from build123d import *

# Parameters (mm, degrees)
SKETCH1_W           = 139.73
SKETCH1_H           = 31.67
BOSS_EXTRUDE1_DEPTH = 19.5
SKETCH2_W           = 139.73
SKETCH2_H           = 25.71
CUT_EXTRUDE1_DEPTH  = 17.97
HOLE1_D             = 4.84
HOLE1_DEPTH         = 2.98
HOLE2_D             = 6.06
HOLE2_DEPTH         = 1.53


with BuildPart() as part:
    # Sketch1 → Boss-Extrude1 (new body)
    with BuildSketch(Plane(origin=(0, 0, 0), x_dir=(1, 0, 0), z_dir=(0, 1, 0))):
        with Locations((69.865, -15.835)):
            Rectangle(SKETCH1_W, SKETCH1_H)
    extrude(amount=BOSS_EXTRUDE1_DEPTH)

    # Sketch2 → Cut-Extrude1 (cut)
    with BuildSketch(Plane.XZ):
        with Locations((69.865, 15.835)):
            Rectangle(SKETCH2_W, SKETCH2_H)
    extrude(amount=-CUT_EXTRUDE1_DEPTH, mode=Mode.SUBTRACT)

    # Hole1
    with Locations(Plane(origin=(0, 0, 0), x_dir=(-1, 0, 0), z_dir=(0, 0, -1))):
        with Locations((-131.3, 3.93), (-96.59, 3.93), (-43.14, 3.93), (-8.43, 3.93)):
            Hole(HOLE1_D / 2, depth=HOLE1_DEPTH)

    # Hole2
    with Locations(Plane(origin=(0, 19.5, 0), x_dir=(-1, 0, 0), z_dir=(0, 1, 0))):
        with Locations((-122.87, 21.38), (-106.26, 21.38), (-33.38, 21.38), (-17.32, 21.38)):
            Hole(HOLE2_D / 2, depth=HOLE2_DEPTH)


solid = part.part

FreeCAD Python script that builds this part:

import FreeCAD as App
import Part
import Sketcher

V = App.Vector


def add_polygon(sketch, points):
    """Adds a closed chain of lines whose ends are joined by coincident constraints."""
    first, n = sketch.GeometryCount, len(points)
    for a, b in zip(points, points[1:] + points[:1]):
        sketch.addGeometry(Part.LineSegment(App.Vector(*a, 0), App.Vector(*b, 0)), False)
    for i in range(n):
        sketch.addConstraint(Sketcher.Constraint("Coincident", first + i, 2, first + (i + 1) % n, 1))

doc = App.newDocument("Part")
body = doc.addObject("PartDesign::Body", "Body")

# Sketch on XZ plane
sketch1 = body.newObject("Sketcher::SketchObject", "Sketch")
sketch1.AttachmentSupport = (doc.getObject("XZ_Plane"), [""])
sketch1.MapMode = "FlatFace"
add_polygon(sketch1, [(0, 0), (0, 31.67), (139.73, 31.67), (139.73, 0)])  # lines 0-3
sketch1.addConstraint([
    Sketcher.Constraint("Vertical", 0),
    Sketcher.Constraint("Horizontal", 1),
    Sketcher.Constraint("Vertical", 2),
    Sketcher.Constraint("Horizontal", 3),
    Sketcher.Constraint("Coincident", 3, 2, -1, 1),
    Sketcher.Constraint("DistanceX", 1, 1, 1, 2, 139.73),
    Sketcher.Constraint("DistanceY", 0, 1, 0, 2, 31.67),
])
pad1 = body.newObject("PartDesign::Pad", "Pad")
pad1.Profile = sketch1
pad1.Length = 19.5
pad1.Reversed = True

# Sketch on XZ plane
sketch2 = body.newObject("Sketcher::SketchObject", "Sketch001")
sketch2.AttachmentSupport = (doc.getObject("XZ_Plane"), [""])
sketch2.MapMode = "FlatFace"
add_polygon(sketch2, [(0, 28.69), (0, 2.98), (139.73, 2.98), (139.73, 28.69)])  # lines 0-3
sketch2.addConstraint([
    Sketcher.Constraint("Vertical", 0),
    Sketcher.Constraint("Horizontal", 1),
    Sketcher.Constraint("Vertical", 2),
    Sketcher.Constraint("Horizontal", 3),
    Sketcher.Constraint("PointOnObject", 0, 2, -2),
    Sketcher.Constraint("DistanceX", 1, 1, 1, 2, 139.73),
    Sketcher.Constraint("DistanceY", 0, 2, 0, 1, 25.71),
    Sketcher.Constraint("DistanceY", -1, 1, 0, 2, 2.98),
])
pocket1 = body.newObject("PartDesign::Pocket", "Pocket")
pocket1.Profile = sketch2
pocket1.Length = 17.97

# Sketch on XY plane
sketch3 = body.newObject("Sketcher::SketchObject", "Sketch002")
sketch3.AttachmentSupport = (doc.getObject("XY_Plane"), [""])
sketch3.MapMode = "FlatFace"
sketch3.addGeometry([
    Part.Circle(V(131.3, 3.93, 0), V(0, 0, 1), 2.42),
    Part.Circle(V(96.59, 3.93, 0), V(0, 0, 1), 2.42),
    Part.Circle(V(43.14, 3.93, 0), V(0, 0, 1), 2.42),
    Part.Circle(V(8.43, 3.93, 0), V(0, 0, 1), 2.42),
], False)
sketch3.addConstraint([
    Sketcher.Constraint("Equal", 0, 1),
    Sketcher.Constraint("Equal", 1, 2),
    Sketcher.Constraint("Equal", 2, 3),
    Sketcher.Constraint("Horizontal", 0, 3, 1, 3),
    Sketcher.Constraint("Horizontal", 1, 3, 2, 3),
    Sketcher.Constraint("Horizontal", 2, 3, 3, 3),
    Sketcher.Constraint("Diameter", 0, 4.84),
    Sketcher.Constraint("DistanceX", -1, 1, 0, 3, 131.3),
    Sketcher.Constraint("DistanceY", -1, 1, 0, 3, 3.93),
    Sketcher.Constraint("DistanceX", -1, 1, 1, 3, 96.59),
    Sketcher.Constraint("DistanceX", -1, 1, 2, 3, 43.14),
    Sketcher.Constraint("DistanceX", -1, 1, 3, 3, 8.43),
])
doc.recompute()
hole = body.newObject("PartDesign::Hole", "Hole")
hole.Profile = sketch3
hole.ThreadType = "None"
hole.Diameter = 4.84
hole.DepthType = "Dimension"
hole.Depth = 2.98
hole.DrillPoint = "Flat"
hole.Reversed = True

# Sketch on XZ plane
sketch4 = body.newObject("Sketcher::SketchObject", "Sketch003")
sketch4.AttachmentSupport = (doc.getObject("XZ_Plane"), [""])
sketch4.MapMode = "FlatFace"
sketch4.AttachmentOffset = App.Placement(V(0, 0, -19.5), App.Rotation())
sketch4.addGeometry([
    Part.Circle(V(122.87, 21.38, 0), V(0, 0, 1), 3.03),
    Part.Circle(V(106.26, 21.38, 0), V(0, 0, 1), 3.03),
    Part.Circle(V(33.38, 21.38, 0), V(0, 0, 1), 3.03),
    Part.Circle(V(17.32, 21.38, 0), V(0, 0, 1), 3.03),
], False)
sketch4.addConstraint([
    Sketcher.Constraint("Equal", 0, 1),
    Sketcher.Constraint("Equal", 1, 2),
    Sketcher.Constraint("Equal", 2, 3),
    Sketcher.Constraint("Horizontal", 0, 3, 1, 3),
    Sketcher.Constraint("Horizontal", 1, 3, 2, 3),
    Sketcher.Constraint("Horizontal", 2, 3, 3, 3),
    Sketcher.Constraint("Diameter", 0, 6.06),
    Sketcher.Constraint("DistanceX", -1, 1, 0, 3, 122.87),
    Sketcher.Constraint("DistanceY", -1, 1, 0, 3, 21.38),
    Sketcher.Constraint("DistanceX", -1, 1, 1, 3, 106.26),
    Sketcher.Constraint("DistanceX", -1, 1, 2, 3, 33.38),
    Sketcher.Constraint("DistanceX", -1, 1, 3, 3, 17.32),
])
doc.recompute()
hole2 = body.newObject("PartDesign::Hole", "Hole001")
hole2.Profile = sketch4
hole2.ThreadType = "None"
hole2.Diameter = 6.06
hole2.DepthType = "Dimension"
hole2.Depth = 1.53
hole2.DrillPoint = "Flat"
hole2.Reversed = True

doc.recompute()
